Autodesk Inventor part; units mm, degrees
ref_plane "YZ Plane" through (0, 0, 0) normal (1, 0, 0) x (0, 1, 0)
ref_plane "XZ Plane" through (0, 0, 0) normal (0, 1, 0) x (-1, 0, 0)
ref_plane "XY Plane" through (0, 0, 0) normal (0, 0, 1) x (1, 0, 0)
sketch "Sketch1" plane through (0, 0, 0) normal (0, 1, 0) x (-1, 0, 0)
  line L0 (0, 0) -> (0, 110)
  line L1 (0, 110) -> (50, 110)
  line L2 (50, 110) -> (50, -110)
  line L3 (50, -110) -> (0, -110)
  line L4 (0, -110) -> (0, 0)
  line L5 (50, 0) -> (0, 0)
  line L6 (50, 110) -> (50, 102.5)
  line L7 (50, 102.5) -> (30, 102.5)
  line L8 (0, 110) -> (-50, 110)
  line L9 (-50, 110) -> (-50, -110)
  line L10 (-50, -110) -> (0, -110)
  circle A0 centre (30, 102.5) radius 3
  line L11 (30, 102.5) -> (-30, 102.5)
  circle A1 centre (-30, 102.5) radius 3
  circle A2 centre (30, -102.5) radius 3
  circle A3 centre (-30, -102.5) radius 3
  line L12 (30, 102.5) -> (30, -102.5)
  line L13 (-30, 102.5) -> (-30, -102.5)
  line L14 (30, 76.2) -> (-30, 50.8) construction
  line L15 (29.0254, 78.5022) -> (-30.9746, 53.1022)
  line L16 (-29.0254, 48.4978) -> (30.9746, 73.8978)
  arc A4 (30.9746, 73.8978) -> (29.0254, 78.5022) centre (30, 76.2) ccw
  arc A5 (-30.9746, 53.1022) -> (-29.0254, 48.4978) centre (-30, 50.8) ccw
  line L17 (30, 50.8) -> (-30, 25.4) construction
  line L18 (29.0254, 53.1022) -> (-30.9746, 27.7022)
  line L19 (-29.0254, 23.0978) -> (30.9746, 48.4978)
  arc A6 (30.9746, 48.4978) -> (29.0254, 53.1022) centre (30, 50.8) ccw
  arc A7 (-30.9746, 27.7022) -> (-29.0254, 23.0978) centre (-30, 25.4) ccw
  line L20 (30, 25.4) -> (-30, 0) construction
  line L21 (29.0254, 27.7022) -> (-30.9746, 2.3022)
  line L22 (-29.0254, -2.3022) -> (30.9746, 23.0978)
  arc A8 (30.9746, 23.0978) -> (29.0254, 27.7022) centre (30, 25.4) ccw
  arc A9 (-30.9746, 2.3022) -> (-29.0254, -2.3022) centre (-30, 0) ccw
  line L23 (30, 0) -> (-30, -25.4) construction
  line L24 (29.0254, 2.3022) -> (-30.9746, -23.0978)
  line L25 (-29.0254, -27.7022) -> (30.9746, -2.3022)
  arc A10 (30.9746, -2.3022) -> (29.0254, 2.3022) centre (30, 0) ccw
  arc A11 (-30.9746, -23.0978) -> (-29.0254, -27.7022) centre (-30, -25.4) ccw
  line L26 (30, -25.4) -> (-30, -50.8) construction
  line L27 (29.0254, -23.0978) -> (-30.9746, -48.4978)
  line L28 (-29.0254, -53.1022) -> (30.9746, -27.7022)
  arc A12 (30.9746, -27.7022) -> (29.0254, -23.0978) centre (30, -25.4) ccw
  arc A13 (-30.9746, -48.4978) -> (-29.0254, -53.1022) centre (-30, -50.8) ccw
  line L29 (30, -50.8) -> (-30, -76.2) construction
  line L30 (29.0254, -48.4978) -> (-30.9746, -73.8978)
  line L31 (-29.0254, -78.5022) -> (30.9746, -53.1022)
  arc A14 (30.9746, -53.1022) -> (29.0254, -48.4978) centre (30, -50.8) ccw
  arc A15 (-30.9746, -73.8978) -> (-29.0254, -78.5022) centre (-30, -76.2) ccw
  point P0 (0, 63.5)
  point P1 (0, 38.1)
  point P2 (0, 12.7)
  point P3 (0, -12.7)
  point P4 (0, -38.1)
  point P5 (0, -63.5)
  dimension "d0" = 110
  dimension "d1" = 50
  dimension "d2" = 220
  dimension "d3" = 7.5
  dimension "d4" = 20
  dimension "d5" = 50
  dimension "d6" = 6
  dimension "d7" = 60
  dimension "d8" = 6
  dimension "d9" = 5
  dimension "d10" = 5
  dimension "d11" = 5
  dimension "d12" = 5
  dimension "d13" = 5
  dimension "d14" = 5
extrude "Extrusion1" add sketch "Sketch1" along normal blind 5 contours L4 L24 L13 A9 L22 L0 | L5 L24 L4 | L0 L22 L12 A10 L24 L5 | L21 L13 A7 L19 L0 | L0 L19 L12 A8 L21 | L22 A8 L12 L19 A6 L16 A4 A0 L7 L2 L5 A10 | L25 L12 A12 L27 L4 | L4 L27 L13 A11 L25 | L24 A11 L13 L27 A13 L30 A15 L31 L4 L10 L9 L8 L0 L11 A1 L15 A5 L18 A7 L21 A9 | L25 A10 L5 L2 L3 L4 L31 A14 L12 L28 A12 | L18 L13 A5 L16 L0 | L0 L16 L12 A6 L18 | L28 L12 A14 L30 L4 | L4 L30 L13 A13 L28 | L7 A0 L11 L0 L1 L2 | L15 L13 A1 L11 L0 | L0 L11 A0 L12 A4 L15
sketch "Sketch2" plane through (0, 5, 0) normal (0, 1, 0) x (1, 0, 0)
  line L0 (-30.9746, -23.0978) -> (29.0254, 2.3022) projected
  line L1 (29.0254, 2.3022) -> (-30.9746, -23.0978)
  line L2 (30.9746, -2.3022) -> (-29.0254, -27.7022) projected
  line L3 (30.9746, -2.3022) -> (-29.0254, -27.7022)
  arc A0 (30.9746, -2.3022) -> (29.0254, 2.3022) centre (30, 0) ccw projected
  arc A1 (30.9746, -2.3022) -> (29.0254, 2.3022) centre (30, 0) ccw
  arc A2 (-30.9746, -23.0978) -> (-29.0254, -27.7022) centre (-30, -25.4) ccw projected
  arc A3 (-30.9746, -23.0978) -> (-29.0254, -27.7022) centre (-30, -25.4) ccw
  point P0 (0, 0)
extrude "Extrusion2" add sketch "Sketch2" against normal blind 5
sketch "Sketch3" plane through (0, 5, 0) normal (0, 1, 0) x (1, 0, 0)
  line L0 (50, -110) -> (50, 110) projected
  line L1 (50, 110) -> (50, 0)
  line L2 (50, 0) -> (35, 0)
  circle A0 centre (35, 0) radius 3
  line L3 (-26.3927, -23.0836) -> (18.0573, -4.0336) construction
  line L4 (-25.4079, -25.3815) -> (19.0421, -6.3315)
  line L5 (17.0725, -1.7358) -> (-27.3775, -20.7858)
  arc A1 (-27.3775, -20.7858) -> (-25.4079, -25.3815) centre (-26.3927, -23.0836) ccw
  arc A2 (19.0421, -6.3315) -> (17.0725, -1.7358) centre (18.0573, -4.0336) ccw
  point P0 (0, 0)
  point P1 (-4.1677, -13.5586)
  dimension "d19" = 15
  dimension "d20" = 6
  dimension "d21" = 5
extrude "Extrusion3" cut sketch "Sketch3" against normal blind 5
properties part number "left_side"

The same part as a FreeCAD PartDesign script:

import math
import FreeCAD as App
import Part
import Sketcher
Q = App.Units.Quantity

doc = App.newDocument("Part")
body = doc.addObject("PartDesign::Body", "Body")

# Sketch on XZ plane
sketch1 = body.newObject("Sketcher::SketchObject", "Sketch")
sketch1.AttachmentSupport = (doc.getObject("XZ_Plane"), [""])
sketch1.MapMode = "FlatFace"
sketch1.addGeometry(Part.LineSegment(App.Vector(50, -110, 0), App.Vector(-50, -110, 0)), False)
sketch1.addGeometry(Part.LineSegment(App.Vector(-50, -110, 0), App.Vector(-50, 110, 0)), False)
sketch1.addGeometry(Part.LineSegment(App.Vector(-50, 110, 0), App.Vector(50, 110, 0)), False)
sketch1.addGeometry(Part.LineSegment(App.Vector(50, 110, 0), App.Vector(50, -110, 0)), False)
sketch1.addGeometry(Part.ArcOfCircle(Part.Circle(App.Vector(-30, 0, 0), App.Vector(0, 0, 1), 2.5), math.radians(67), math.radians(247)), False)
sketch1.addGeometry(Part.LineSegment(App.Vector(-31, -2.3, 0), App.Vector(29, -27.7, 0)), False)
sketch1.addGeometry(Part.ArcOfCircle(Part.Circle(App.Vector(30, -25.4, 0), App.Vector(0, 0, 1), 2.5), math.radians(-113), math.radians(67)), False)
sketch1.addGeometry(Part.LineSegment(App.Vector(31, -23.1, 0), App.Vector(-29, 2.3, 0)), False)
sketch1.addGeometry(Part.ArcOfCircle(Part.Circle(App.Vector(30, 0, 0), App.Vector(0, 0, 1), 2.5), math.radians(-113), math.radians(67)), False)
sketch1.addGeometry(Part.LineSegment(App.Vector(31, 2.3, 0), App.Vector(-29, 27.7, 0)), False)
sketch1.addGeometry(Part.ArcOfCircle(Part.Circle(App.Vector(-30, 25.4, 0), App.Vector(0, 0, 1), 2.5), math.radians(67), math.radians(247)), False)
sketch1.addGeometry(Part.LineSegment(App.Vector(-31, 23.1, 0), App.Vector(29, -2.3, 0)), False)
sketch1.addGeometry(Part.LineSegment(App.Vector(31, -48.5, 0), App.Vector(-29, -23.1, 0)), False)
sketch1.addGeometry(Part.ArcOfCircle(Part.Circle(App.Vector(-30, -25.4, 0), App.Vector(0, 0, 1), 2.5), math.radians(67), math.radians(247)), False)
sketch1.addGeometry(Part.LineSegment(App.Vector(-31, -27.7, 0), App.Vector(29, -53.1, 0)), False)
sketch1.addGeometry(Part.ArcOfCircle(Part.Circle(App.Vector(30, -50.8, 0), App.Vector(0, 0, 1), 2.5), math.radians(-113), math.radians(67)), False)
sketch1.addGeometry(Part.LineSegment(App.Vector(31, -73.9, 0), App.Vector(-29, -48.5, 0)), False)
sketch1.addGeometry(Part.ArcOfCircle(Part.Circle(App.Vector(-30, -50.8, 0), App.Vector(0, 0, 1), 2.5), math.radians(67), math.radians(247)), False)
sketch1.addGeometry(Part.LineSegment(App.Vector(-31, -53.1, 0), App.Vector(-30, -53.5, 0)), False)
sketch1.addGeometry(Part.LineSegment(App.Vector(-30, -53.5, 0), App.Vector(29, -78.5, 0)), False)
sketch1.addGeometry(Part.ArcOfCircle(Part.Circle(App.Vector(30, -76.2, 0), App.Vector(0, 0, 1), 2.5), math.radians(-113), math.radians(-90)), False)
sketch1.addGeometry(Part.ArcOfCircle(Part.Circle(App.Vector(30, -76.2, 0), App.Vector(0, 0, 1), 2.5), math.radians(-90), math.radians(67)), False)
sketch1.addGeometry(Part.Circle(App.Vector(30, 102.5, 0), App.Vector(0, 0, 1), 3), False)
sketch1.addGeometry(Part.LineSegment(App.Vector(31, 53.1, 0), App.Vector(-29, 78.5, 0)), False)
sketch1.addGeometry(Part.ArcOfCircle(Part.Circle(App.Vector(-30, 76.2, 0), App.Vector(0, 0, 1), 2.5), math.radians(67), math.radians(247)), False)
sketch1.addGeometry(Part.LineSegment(App.Vector(-31, 73.9, 0), App.Vector(29, 48.5, 0)), False)
sketch1.addGeometry(Part.ArcOfCircle(Part.Circle(App.Vector(30, 50.8, 0), App.Vector(0, 0, 1), 2.5), math.radians(-113), math.radians(67)), False)
sketch1.addGeometry(Part.LineSegment(App.Vector(31, 27.7, 0), App.Vector(-29, 53.1, 0)), False)
sketch1.addGeometry(Part.ArcOfCircle(Part.Circle(App.Vector(-30, 50.8, 0), App.Vector(0, 0, 1), 2.5), math.radians(67), math.radians(247)), False)
sketch1.addGeometry(Part.LineSegment(App.Vector(-31, 48.5, 0), App.Vector(29, 23.1, 0)), False)
sketch1.addGeometry(Part.ArcOfCircle(Part.Circle(App.Vector(30, 25.4, 0), App.Vector(0, 0, 1), 2.5), math.radians(-113), math.radians(67)), False)
sketch1.addGeometry(Part.Circle(App.Vector(30, -102.5, 0), App.Vector(0, 0, 1), 3), False)
sketch1.addGeometry(Part.Circle(App.Vector(-30, -102.5, 0), App.Vector(0, 0, 1), 3), False)
sketch1.addGeometry(Part.Circle(App.Vector(-30, 102.5, 0), App.Vector(0, 0, 1), 3), False)
sketch1.addConstraint(Sketcher.Constraint("Coincident", 0, 2, 1, 1))
sketch1.addConstraint(Sketcher.Constraint("Coincident", 1, 2, 2, 1))
sketch1.addConstraint(Sketcher.Constraint("Coincident", 2, 2, 3, 1))
sketch1.addConstraint(Sketcher.Constraint("Coincident", 3, 2, 0, 1))
sketch1.addConstraint(Sketcher.Constraint("Tangent", 4, 2, 5, 1))
sketch1.addConstraint(Sketcher.Constraint("Tangent", 5, 2, 6, 1))
sketch1.addConstraint(Sketcher.Constraint("Tangent", 6, 2, 7, 1))
sketch1.addConstraint(Sketcher.Constraint("Tangent", 7, 2, 4, 1))
sketch1.addConstraint(Sketcher.Constraint("Tangent", 8, 2, 9, 1))
sketch1.addConstraint(Sketcher.Constraint("Tangent", 9, 2, 10, 1))
sketch1.addConstraint(Sketcher.Constraint("Tangent", 10, 2, 11, 1))
sketch1.addConstraint(Sketcher.Constraint("Tangent", 11, 2, 8, 1))
sketch1.addConstraint(Sketcher.Constraint("Tangent", 12, 2, 13, 1))
sketch1.addConstraint(Sketcher.Constraint("Tangent", 13, 2, 14, 1))
sketch1.addConstraint(Sketcher.Constraint("Tangent", 14, 2, 15, 1))
sketch1.addConstraint(Sketcher.Constraint("Tangent", 15, 2, 12, 1))
sketch1.addConstraint(Sketcher.Constraint("Tangent", 16, 2, 17, 1))
sketch1.addConstraint(Sketcher.Constraint("Tangent", 17, 2, 18, 1))
sketch1.addConstraint(Sketcher.Constraint("Coincident", 18, 2, 19, 1))
sketch1.addConstraint(Sketcher.Constraint("Tangent", 19, 2, 20, 1))
sketch1.addConstraint(Sketcher.Constraint("Tangent", 20, 2, 21, 1))
sketch1.addConstraint(Sketcher.Constraint("Tangent", 21, 2, 16, 1))
sketch1.addConstraint(Sketcher.Constraint("Tangent", 23, 2, 24, 1))
sketch1.addConstraint(Sketcher.Constraint("Tangent", 24, 2, 25, 1))
sketch1.addConstraint(Sketcher.Constraint("Tangent", 25, 2, 26, 1))
sketch1.addConstraint(Sketcher.Constraint("Tangent", 26, 2, 23, 1))
sketch1.addConstraint(Sketcher.Constraint("Tangent", 27, 2, 28, 1))
sketch1.addConstraint(Sketcher.Constraint("Tangent", 28, 2, 29, 1))
sketch1.addConstraint(Sketcher.Constraint("Tangent", 29, 2, 30, 1))
sketch1.addConstraint(Sketcher.Constraint("Tangent", 30, 2, 27, 1))
sketch1.addConstraint(Sketcher.Constraint("Horizontal", 0))
sketch1.addConstraint(Sketcher.Constraint("Vertical", 1))
sketch1.addConstraint(Sketcher.Constraint("Horizontal", 2))
sketch1.addConstraint(Sketcher.Constraint("Vertical", 3))
sketch1.addConstraint(Sketcher.Constraint("Equal", 4, 6))
sketch1.addConstraint(Sketcher.Constraint("Equal", 6, 8))
sketch1.addConstraint(Sketcher.Constraint("Equal", 8, 10))
sketch1.addConstraint(Sketcher.Constraint("Equal", 10, 13))
sketch1.addConstraint(Sketcher.Constraint("Equal", 13, 15))
sketch1.addConstraint(Sketcher.Constraint("Equal", 15, 17))
sketch1.addConstraint(Sketcher.Constraint("Equal", 17, 20))
sketch1.addConstraint(Sketcher.Constraint("Equal", 20, 21))
sketch1.addConstraint(Sketcher.Constraint("Equal", 21, 24))
sketch1.addConstraint(Sketcher.Constraint("Equal", 24, 26))
sketch1.addConstraint(Sketcher.Constraint("Equal", 26, 28))
sketch1.addConstraint(Sketcher.Constraint("Equal", 28, 30))
sketch1.addConstraint(Sketcher.Constraint("Equal", 22, 31))
sketch1.addConstraint(Sketcher.Constraint("Equal", 31, 32))
sketch1.addConstraint(Sketcher.Constraint("Equal", 32, 33))
sketch1.addConstraint(Sketcher.Constraint("Symmetric", 4, 3, 8, 3, -1, 1))
sketch1.addConstraint(Sketcher.Constraint("Symmetric", 6, 3, 10, 3, -1, 1))
sketch1.addConstraint(Sketcher.Constraint("Symmetric", 20, 3, 24, 3, -1, 1))
sketch1.addConstraint(Sketcher.Constraint("Symmetric", 17, 3, 26, 3, -1, 1))
sketch1.addConstraint(Sketcher.Constraint("Symmetric", 15, 3, 28, 3, -1, 1))
sketch1.addConstraint(Sketcher.Constraint("Symmetric", 13, 3, 30, 3, -1, 1))
sketch1.addConstraint(Sketcher.Constraint("Symmetric", 22, 3, 32, 3, -1, 1))
sketch1.addConstraint(Sketcher.Constraint("Symmetric", 31, 3, 33, 3, -1, 1))
sketch1.addConstraint(Sketcher.Constraint("Symmetric", 0, 2, 2, 2, -1, 1))
sketch1.addConstraint(Sketcher.Constraint("Symmetric", 6, 3, 13, 3, -2))
sketch1.addConstraint(Sketcher.Constraint("Symmetric", 15, 3, 17, 3, -2))
sketch1.addConstraint(Sketcher.Constraint("Symmetric", 31, 3, 32, 3, -2))
sketch1.addConstraint(Sketcher.Constraint("PointOnObject", 4, 3, -1))
sketch1.addConstraint(Sketcher.Constraint("Parallel", 11, 12))
sketch1.addConstraint(Sketcher.Constraint("Parallel", 14, 16))
sketch1.addConstraint(Sketcher.Constraint("Parallel", 16, 18))
sketch1.addConstraint(Sketcher.Constraint("Vertical", 6, 3, 8, 3))
sketch1.addConstraint(Sketcher.Constraint("Vertical", 8, 3, 15, 3))
sketch1.addConstraint(Sketcher.Constraint("Vertical", 15, 3, 20, 3))
sketch1.addConstraint(Sketcher.Constraint("Vertical", 21, 3, 22, 3))
sketch1.addConstraint(Sketcher.Constraint("Vertical", 33, 3, 18, 2))
sketch1.addConstraint(Sketcher.Constraint("Vertical", 31, 3, 20, 2))
sketch1.addConstraint(Sketcher.Constraint("Diameter", 22, Q("6 mm")))
sketch1.addConstraint(Sketcher.Constraint("Radius", 4, Q("2.5 mm")))
sketch1.addConstraint(Sketcher.Constraint("DistanceY", 1, 1, 1, 2, Q("220 mm")))
sketch1.addConstraint(Sketcher.Constraint("DistanceX", 0, 2, -1, 1, Q("50 mm")))
sketch1.addConstraint(Sketcher.Constraint("DistanceX", 4, 3, 6, 3, Q("60 mm")))
sketch1.addConstraint(Sketcher.Constraint("DistanceY", 0, 2, 32, 3, Q("7.5 mm")))
sketch1.addConstraint(Sketcher.Constraint("DistanceY", 6, 3, -1, 1, Q("25.4 mm")))
pad1 = body.newObject("PartDesign::Pad", "Pad")
pad1.Profile = sketch1
pad1.Length = 5
pad1.Reversed = True

# Sketch on XZ plane
sketch2 = body.newObject("Sketcher::SketchObject", "Sketch001")
sketch2.AttachmentSupport = (doc.getObject("XZ_Plane"), [""])
sketch2.MapMode = "FlatFace"
sketch2.AttachmentOffset = App.Placement(App.Vector(0, 0, -5), App.Rotation())
sketch2.addGeometry(Part.LineSegment(App.Vector(29, -2.3, 0), App.Vector(-31, 23.1, 0)), False)
sketch2.addGeometry(Part.ArcOfCircle(Part.Circle(App.Vector(-30, 25.4, 0), App.Vector(0, 0, 1), 2.5), math.radians(67), math.radians(247)), False)
sketch2.addGeometry(Part.LineSegment(App.Vector(-29, 27.7, 0), App.Vector(31, 2.3, 0)), False)
sketch2.addGeometry(Part.ArcOfCircle(Part.Circle(App.Vector(30, 0, 0), App.Vector(0, 0, 1), 2.5), math.radians(-113), math.radians(67)), False)
sketch2.addConstraint(Sketcher.Constraint("Tangent", 0, 2, 1, 2))
sketch2.addConstraint(Sketcher.Constraint("Tangent", 1, 1, 2, 1))
sketch2.addConstraint(Sketcher.Constraint("Tangent", 2, 2, 3, 2))
sketch2.addConstraint(Sketcher.Constraint("Tangent", 3, 1, 0, 1))
sketch2.addConstraint(Sketcher.Constraint("Equal", 1, 3))
sketch2.addConstraint(Sketcher.Constraint("PointOnObject", 3, 3, -1))
sketch2.addConstraint(Sketcher.Constraint("Radius", 1, Q("2.5 mm")))
sketch2.addConstraint(Sketcher.Constraint("DistanceX", 1, 3, -1, 1, Q("30 mm")))
sketch2.addConstraint(Sketcher.Constraint("DistanceX", -1, 1, 3, 3, Q("30 mm")))
sketch2.addConstraint(Sketcher.Constraint("DistanceY", -1, 1, 1, 3, Q("25.4 mm")))
pad2 = body.newObject("PartDesign::Pad", "Pad001")
pad2.Profile = sketch2
pad2.Length = 5

# Sketch on XZ plane
sketch3 = body.newObject("Sketcher::SketchObject", "Sketch002")
sketch3.AttachmentSupport = (doc.getObject("XZ_Plane"), [""])
sketch3.MapMode = "FlatFace"
sketch3.AttachmentOffset = App.Placement(App.Vector(0, 0, -5), App.Rotation())
sketch3.addGeometry(Part.Circle(App.Vector(35, 0, 0), App.Vector(0, 0, 1), 3), False)
sketch3.addGeometry(Part.ArcOfCircle(Part.Circle(App.Vector(-26.4, 23.1, 0), App.Vector(0, 0, 1), 2.5), math.radians(67), math.radians(247)), False)
sketch3.addGeometry(Part.LineSegment(App.Vector(-25.4, 25.4, 0), App.Vector(19, 6.3, 0)), False)
sketch3.addGeometry(Part.ArcOfCircle(Part.Circle(App.Vector(18.1, 4, 0), App.Vector(0, 0, 1), 2.5), math.radians(-113), math.radians(67)), False)
sketch3.addGeometry(Part.LineSegment(App.Vector(17.1, 1.7, 0), App.Vector(-27.4, 20.8, 0)), False)
sketch3.addConstraint(Sketcher.Constraint("Tangent", 1, 1, 2, 1))
sketch3.addConstraint(Sketcher.Constraint("Tangent", 2, 2, 3, 2))
sketch3.addConstraint(Sketcher.Constraint("Tangent", 3, 1, 4, 1))
sketch3.addConstraint(Sketcher.Constraint("Tangent", 4, 2, 1, 2))
sketch3.addConstraint(Sketcher.Constraint("Equal", 1, 3))
sketch3.addConstraint(Sketcher.Constraint("PointOnObject", 0, 3, -1))
sketch3.addConstraint(Sketcher.Constraint("Diameter", 0, Q("6 mm")))
sketch3.addConstraint(Sketcher.Constraint("Radius", 1, Q("2.5 mm")))
sketch3.addConstraint(Sketcher.Constraint("DistanceX", -1, 1, 0, 3, Q("35 mm")))
sketch3.addConstraint(Sketcher.Constraint("DistanceX", 1, 3, 3, 3, Q("44.45 mm")))
sketch3.addConstraint(Sketcher.Constraint("DistanceY", 3, 3, 1, 3, Q("19.05 mm")))
sketch3.addConstraint(Sketcher.Constraint("DistanceX", 1, 1, -1, 1, Q("25.408 mm")))
sketch3.addConstraint(Sketcher.Constraint("DistanceY", -1, 1, 1, 3, Q("23.0836 mm")))
pocket1 = body.newObject("PartDesign::Pocket", "Pocket")
pocket1.Profile = sketch3
pocket1.Length = 5
pocket1.Reversed = True

doc.recompute()
